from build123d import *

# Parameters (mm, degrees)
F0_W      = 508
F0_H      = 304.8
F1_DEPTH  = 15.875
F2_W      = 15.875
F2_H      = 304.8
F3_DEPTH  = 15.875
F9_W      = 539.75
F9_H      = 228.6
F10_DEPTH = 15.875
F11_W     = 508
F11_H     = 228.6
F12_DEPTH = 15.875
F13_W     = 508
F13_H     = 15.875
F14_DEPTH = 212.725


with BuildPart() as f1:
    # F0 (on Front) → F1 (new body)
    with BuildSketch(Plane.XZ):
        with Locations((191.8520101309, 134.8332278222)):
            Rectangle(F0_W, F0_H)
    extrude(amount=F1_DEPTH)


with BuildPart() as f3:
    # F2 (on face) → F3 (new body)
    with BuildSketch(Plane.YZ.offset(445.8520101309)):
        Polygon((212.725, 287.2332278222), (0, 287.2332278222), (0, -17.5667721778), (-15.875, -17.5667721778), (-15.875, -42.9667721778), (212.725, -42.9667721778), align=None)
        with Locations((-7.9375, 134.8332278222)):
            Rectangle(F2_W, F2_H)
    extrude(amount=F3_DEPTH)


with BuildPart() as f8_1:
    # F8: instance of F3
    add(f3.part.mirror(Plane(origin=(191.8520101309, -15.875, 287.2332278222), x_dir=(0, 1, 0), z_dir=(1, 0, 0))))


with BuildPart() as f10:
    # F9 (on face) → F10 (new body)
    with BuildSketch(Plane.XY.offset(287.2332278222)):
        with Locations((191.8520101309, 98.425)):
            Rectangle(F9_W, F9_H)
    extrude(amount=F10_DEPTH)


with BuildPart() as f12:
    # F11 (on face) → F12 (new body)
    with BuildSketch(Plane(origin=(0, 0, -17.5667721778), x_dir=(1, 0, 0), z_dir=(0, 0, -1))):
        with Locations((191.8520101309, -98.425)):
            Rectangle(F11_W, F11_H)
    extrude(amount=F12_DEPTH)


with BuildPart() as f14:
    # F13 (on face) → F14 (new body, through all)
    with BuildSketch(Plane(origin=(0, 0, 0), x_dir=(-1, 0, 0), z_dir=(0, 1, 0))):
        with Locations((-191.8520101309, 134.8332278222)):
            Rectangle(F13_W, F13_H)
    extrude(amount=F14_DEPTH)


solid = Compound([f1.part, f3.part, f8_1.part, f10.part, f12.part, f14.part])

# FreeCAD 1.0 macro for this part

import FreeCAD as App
import Part
import Sketcher
from FreeCAD import Vector
Q = App.Units.Quantity

doc = App.newDocument("Part")
body = doc.addObject("PartDesign::Body", "Body")

sketch1 = doc.addObject("Sketcher::SketchObject", "Sketch")
body.addObject(sketch1)
sketch1.AttachmentSupport = (doc.XZ_Plane, [""])
sketch1.MapMode = "FlatFace"
sketch1.addGeometry([
    Part.LineSegment(Vector(-62, 287, 0), Vector(-62, -18, 0)),
    Part.LineSegment(Vector(-62, -18, 0), Vector(446, -18, 0)),
    Part.LineSegment(Vector(446, -18, 0), Vector(446, 287, 0)),
    Part.LineSegment(Vector(446, 287, 0), Vector(-62, 287, 0)),
], False)
sketch1.addConstraint([
    Sketcher.Constraint("Coincident", 0, 2, 1, 1),
    Sketcher.Constraint("Coincident", 1, 2, 2, 1),
    Sketcher.Constraint("Coincident", 2, 2, 3, 1),
    Sketcher.Constraint("Coincident", 3, 2, 0, 1),
    Sketcher.Constraint("Vertical", 0),
    Sketcher.Constraint("Horizontal", 1),
    Sketcher.Constraint("Vertical", 2),
    Sketcher.Constraint("Horizontal", 3),
    Sketcher.Constraint("DistanceX", 1, 1, 1, 2, Q("20 in")),
    Sketcher.Constraint("DistanceY", 0, 2, 0, 1, Q("12 in")),
    Sketcher.Constraint("DistanceX", 0, 2, -1, 1, 62.14799),
    Sketcher.Constraint("DistanceY", 0, 2, -1, 1, 17.566772),
])
pad1 = doc.addObject("PartDesign::Pad", "Pad")
body.addObject(pad1)
pad1.Profile = sketch1
pad1.Length = Q("0.625 in")
body2 = doc.addObject("PartDesign::Body", "Body001")

sketch2 = doc.addObject("Sketcher::SketchObject", "Sketch001")
body2.addObject(sketch2)
sketch2.AttachmentSupport = (doc.getObject("YZ_Plane001"), [""])
sketch2.MapMode = "FlatFace"
sketch2.AttachmentOffset = App.Placement(Vector(0, 0, 445.85201), App.Rotation())
sketch2.addGeometry([
    Part.LineSegment(Vector(213, 287, 0), Vector(-16, 287, 0)),
    Part.LineSegment(Vector(-16, 287, 0), Vector(-16, -43, 0)),
    Part.LineSegment(Vector(-16, -43, 0), Vector(213, -43, 0)),
    Part.LineSegment(Vector(213, -43, 0), Vector(213, 287, 0)),
], False)
sketch2.addConstraint([
    Sketcher.Constraint("Coincident", 0, 2, 1, 1),
    Sketcher.Constraint("Coincident", 1, 2, 2, 1),
    Sketcher.Constraint("Coincident", 2, 2, 3, 1),
    Sketcher.Constraint("Coincident", 3, 2, 0, 1),
    Sketcher.Constraint("Horizontal", 0),
    Sketcher.Constraint("Vertical", 1),
    Sketcher.Constraint("Horizontal", 2),
    Sketcher.Constraint("Vertical", 3),
    Sketcher.Constraint("DistanceX", 0, 2, 0, 1, Q("9 in")),
    Sketcher.Constraint("DistanceY", 1, 2, 1, 1, Q("13 in")),
    Sketcher.Constraint("DistanceX", 0, 2, -1, 1, Q("0.625 in")),
    Sketcher.Constraint("DistanceY", -1, 1, 0, 2, 287.233228),
])
pad2 = doc.addObject("PartDesign::Pad", "Pad001")
body2.addObject(pad2)
pad2.Profile = sketch2
pad2.Length = Q("0.625 in")
body3 = doc.addObject("PartDesign::Body", "Body002")
doc.recompute()

mirroring = doc.addObject("Part::Mirroring", "Mirroring")
mirroring.Source = body2
mirroring.Base = Vector(191.85201, -15.875, 287.233228)
mirroring.Normal = Vector(1, 0, 0)
body3.BaseFeature = mirroring
doc.recompute()
body4 = doc.addObject("PartDesign::Body", "Body003")

sketch3 = doc.addObject("Sketcher::SketchObject", "Sketch002")
body4.addObject(sketch3)
sketch3.AttachmentSupport = (doc.getObject("XY_Plane003"), [""])
sketch3.MapMode = "FlatFace"
sketch3.AttachmentOffset = App.Placement(Vector(0, 0, 287.233228), App.Rotation())
sketch3.addGeometry([
    Part.LineSegment(Vector(-78, 213, 0), Vector(-78, -16, 0)),
    Part.LineSegment(Vector(-78, -16, 0), Vector(462, -16, 0)),
    Part.LineSegment(Vector(462, -16, 0), Vector(462, 213, 0)),
    Part.LineSegment(Vector(462, 213, 0), Vector(-78, 213, 0)),
], False)
sketch3.addConstraint([
    Sketcher.Constraint("Coincident", 0, 2, 1, 1),
    Sketcher.Constraint("Coincident", 1, 2, 2, 1),
    Sketcher.Constraint("Coincident", 2, 2, 3, 1),
    Sketcher.Constraint("Coincident", 3, 2, 0, 1),
    Sketcher.Constraint("Vertical", 0),
    Sketcher.Constraint("Horizontal", 1),
    Sketcher.Constraint("Vertical", 2),
    Sketcher.Constraint("Horizontal", 3),
    Sketcher.Constraint("DistanceY", 0, 2, 0, 1, Q("9 in")),
    Sketcher.Constraint("DistanceX", 1, 1, 1, 2, Q("21.25 in")),
    Sketcher.Constraint("DistanceY", 0, 2, -1, 1, Q("0.625 in")),
    Sketcher.Constraint("DistanceX", 0, 2, -1, 1, 78.02299),
])
pad3 = doc.addObject("PartDesign::Pad", "Pad002")
body4.addObject(pad3)
pad3.Profile = sketch3
pad3.Length = Q("0.625 in")
body5 = doc.addObject("PartDesign::Body", "Body004")

sketch4 = doc.addObject("Sketcher::SketchObject", "Sketch003")
body5.addObject(sketch4)
sketch4.AttachmentSupport = (doc.getObject("XY_Plane004"), [""])
sketch4.MapMode = "FlatFace"
sketch4.AttachmentOffset = App.Placement(Vector(0, 0, -17.566772), App.Rotation())
sketch4.addGeometry([
    Part.LineSegment(Vector(-62, -16, 0), Vector(-62, 213, 0)),
    Part.LineSegment(Vector(-62, 213, 0), Vector(446, 213, 0)),
    Part.LineSegment(Vector(446, 213, 0), Vector(446, -16, 0)),
    Part.LineSegment(Vector(446, -16, 0), Vector(-62, -16, 0)),
], False)
sketch4.addConstraint([
    Sketcher.Constraint("Coincident", 0, 2, 1, 1),
    Sketcher.Constraint("Coincident", 1, 2, 2, 1),
    Sketcher.Constraint("Coincident", 2, 2, 3, 1),
    Sketcher.Constraint("Coincident", 3, 2, 0, 1),
    Sketcher.Constraint("Vertical", 0),
    Sketcher.Constraint("Horizontal", 1),
    Sketcher.Constraint("Vertical", 2),
    Sketcher.Constraint("Horizontal", 3),
    Sketcher.Constraint("DistanceX", 1, 1, 1, 2, Q("20 in")),
    Sketcher.Constraint("DistanceY", 0, 1, 0, 2, Q("9 in")),
    Sketcher.Constraint("DistanceY", -1, 1, 0, 2, Q("8.375 in")),
    Sketcher.Constraint("DistanceX", 0, 2, -1, 1, 62.14799),
])
pad4 = doc.addObject("PartDesign::Pad", "Pad003")
body5.addObject(pad4)
pad4.Profile = sketch4
pad4.Length = Q("0.625 in")
pad4.Reversed = True
body6 = doc.addObject("PartDesign::Body", "Body005")

sketch5 = doc.addObject("Sketcher::SketchObject", "Sketch004")
body6.addObject(sketch5)
sketch5.AttachmentSupport = (doc.getObject("XZ_Plane005"), [""])
sketch5.MapMode = "FlatFace"
sketch5.addGeometry([
    Part.LineSegment(Vector(446, 143, 0), Vector(446, 127, 0)),
    Part.LineSegment(Vector(446, 127, 0), Vector(-62, 127, 0)),
    Part.LineSegment(Vector(-62, 127, 0), Vector(-62, 143, 0)),
    Part.LineSegment(Vector(-62, 143, 0), Vector(446, 143, 0)),
], False)
sketch5.addConstraint([
    Sketcher.Constraint("Coincident", 0, 2, 1, 1),
    Sketcher.Constraint("Coincident", 1, 2, 2, 1),
    Sketcher.Constraint("Coincident", 2, 2, 3, 1),
    Sketcher.Constraint("Coincident", 3, 2, 0, 1),
    Sketcher.Constraint("Vertical", 0),
    Sketcher.Constraint("Horizontal", 1),
    Sketcher.Constraint("Vertical", 2),
    Sketcher.Constraint("Horizontal", 3),
    Sketcher.Constraint("DistanceX", 1, 2, 1, 1, Q("20 in")),
    Sketcher.Constraint("DistanceY", 0, 2, 0, 1, Q("0.625 in")),
    Sketcher.Constraint("DistanceX", -1, 1, 0, 2, 445.85201),
    Sketcher.Constraint("DistanceY", -1, 1, 0, 2, 126.895728),
])
pad5 = doc.addObject("PartDesign::Pad", "Pad004")
body6.addObject(pad5)
pad5.Profile = sketch5
pad5.Length = Q("8.375 in")
pad5.Reversed = True
mirroring.Visibility = False

doc.recompute()
